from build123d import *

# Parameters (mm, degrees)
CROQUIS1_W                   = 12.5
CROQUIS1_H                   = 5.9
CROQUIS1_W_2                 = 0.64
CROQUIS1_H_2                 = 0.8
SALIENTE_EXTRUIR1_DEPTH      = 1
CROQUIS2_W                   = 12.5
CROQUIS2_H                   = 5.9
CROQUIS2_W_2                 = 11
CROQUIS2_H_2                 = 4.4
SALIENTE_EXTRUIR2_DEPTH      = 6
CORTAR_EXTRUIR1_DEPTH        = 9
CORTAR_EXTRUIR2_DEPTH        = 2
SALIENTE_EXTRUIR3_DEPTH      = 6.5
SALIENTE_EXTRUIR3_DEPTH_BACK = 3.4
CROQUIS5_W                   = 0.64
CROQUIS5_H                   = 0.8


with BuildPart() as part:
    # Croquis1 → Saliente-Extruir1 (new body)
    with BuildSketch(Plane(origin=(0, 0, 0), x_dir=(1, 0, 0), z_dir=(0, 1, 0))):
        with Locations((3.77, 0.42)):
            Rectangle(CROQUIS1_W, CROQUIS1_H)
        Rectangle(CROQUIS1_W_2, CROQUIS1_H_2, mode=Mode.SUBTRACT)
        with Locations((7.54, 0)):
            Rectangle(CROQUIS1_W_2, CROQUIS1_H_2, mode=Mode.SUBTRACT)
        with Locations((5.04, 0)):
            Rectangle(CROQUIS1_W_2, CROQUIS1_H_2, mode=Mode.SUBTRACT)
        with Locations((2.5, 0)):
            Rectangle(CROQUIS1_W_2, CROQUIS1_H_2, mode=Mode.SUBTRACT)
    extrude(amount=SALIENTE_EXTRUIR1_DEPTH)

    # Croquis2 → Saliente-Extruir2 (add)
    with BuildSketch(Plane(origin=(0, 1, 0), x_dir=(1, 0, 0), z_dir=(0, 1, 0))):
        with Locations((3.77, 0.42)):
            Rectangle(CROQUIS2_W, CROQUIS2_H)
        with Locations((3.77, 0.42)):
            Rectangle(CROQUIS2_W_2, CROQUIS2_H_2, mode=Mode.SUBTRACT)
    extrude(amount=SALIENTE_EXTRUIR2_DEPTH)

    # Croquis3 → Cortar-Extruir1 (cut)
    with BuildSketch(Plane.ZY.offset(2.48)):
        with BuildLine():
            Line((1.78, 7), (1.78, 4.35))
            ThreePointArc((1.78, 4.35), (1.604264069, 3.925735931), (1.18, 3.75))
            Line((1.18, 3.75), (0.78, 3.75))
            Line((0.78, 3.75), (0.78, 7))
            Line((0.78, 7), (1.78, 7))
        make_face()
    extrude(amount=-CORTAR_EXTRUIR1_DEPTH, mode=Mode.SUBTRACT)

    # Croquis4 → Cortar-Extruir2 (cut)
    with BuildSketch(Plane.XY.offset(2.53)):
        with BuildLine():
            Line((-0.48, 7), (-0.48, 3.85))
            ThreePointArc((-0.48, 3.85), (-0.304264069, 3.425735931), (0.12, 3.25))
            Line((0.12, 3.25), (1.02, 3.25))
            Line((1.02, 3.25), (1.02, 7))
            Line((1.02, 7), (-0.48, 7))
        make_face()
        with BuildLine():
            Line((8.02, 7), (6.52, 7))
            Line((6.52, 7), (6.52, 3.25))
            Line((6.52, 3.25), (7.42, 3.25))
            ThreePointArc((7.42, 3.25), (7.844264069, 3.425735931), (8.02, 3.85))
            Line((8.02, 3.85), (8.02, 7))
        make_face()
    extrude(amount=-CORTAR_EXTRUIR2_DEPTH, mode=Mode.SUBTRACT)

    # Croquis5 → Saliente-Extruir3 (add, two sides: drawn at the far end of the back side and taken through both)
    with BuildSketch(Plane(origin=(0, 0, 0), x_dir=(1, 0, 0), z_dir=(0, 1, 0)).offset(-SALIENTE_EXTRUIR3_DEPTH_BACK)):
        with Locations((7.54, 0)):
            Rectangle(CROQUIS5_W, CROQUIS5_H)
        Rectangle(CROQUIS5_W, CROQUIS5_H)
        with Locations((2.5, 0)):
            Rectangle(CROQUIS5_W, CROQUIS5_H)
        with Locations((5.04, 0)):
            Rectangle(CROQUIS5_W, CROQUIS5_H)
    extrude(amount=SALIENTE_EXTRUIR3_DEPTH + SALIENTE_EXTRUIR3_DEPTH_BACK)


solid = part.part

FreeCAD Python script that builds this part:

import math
import FreeCAD as App
import Part
import Sketcher
from FreeCAD import Vector
Q = App.Units.Quantity

doc = App.newDocument("Part")
params = doc.addObject("Spreadsheet::Sheet", "Params")
for row, (alias, value) in enumerate([
    ("sketch1_width", "12.5 mm"),
    ("sketch1_height", "5.9 mm"),
    ("sketch1_height2", "0.8 mm"),
    ("sketch1_width2", "0.64 mm"),
    ("pad1_length", "1 mm"),
    ("sketch2_width", "11 mm"),
    ("sketch2_width2", "12.5 mm"),
    ("sketch2_height", "5.9 mm"),
    ("sketch2_height2", "4.4 mm"),
    ("pad2_length", "6 mm"),
    ("sketch3_radius", "0.6 mm"),
    ("sketch3_height", "1 mm"),
    ("sketch3_width", "2.65 mm"),
    ("pocket1_length", "9 mm"),
    ("sketch4_radius", "0.6 mm"),
    ("sketch4_width", "0.9 mm"),
    ("sketch4_height", "3.15 mm"),
    ("pocket2_length", "2 mm"),
    ("sketch5_height", "0.8 mm"),
    ("sketch5_width", "0.64 mm"),
    ("pad3_length", "6.5 mm"),
    ("pad3_length2", "3.4 mm"),
], start=1):
    params.set(f"A{row}", alias)
    params.set(f"B{row}", "=" + value)
    params.setAlias(f"B{row}", alias)

body = doc.addObject("PartDesign::Body", "Body")

# Sketch on XZ plane
sketch1 = doc.addObject("Sketcher::SketchObject", "Sketch")
body.addObject(sketch1)
sketch1.AttachmentSupport = (doc.XZ_Plane, [""])
sketch1.MapMode = "FlatFace"
sketch1.addGeometry([
    Part.LineSegment(Vector(-2.5, -3.4, 0), Vector(-2.5, 2.5, 0)),  # 0
    Part.LineSegment(Vector(-2.5, 2.5, 0), Vector(10, 2.5, 0)),  # 1
    Part.LineSegment(Vector(10, 2.5, 0), Vector(10, -3.4, 0)),  # 2
    Part.LineSegment(Vector(10, -3.4, 0), Vector(-2.5, -3.4, 0)),  # 3
    Part.LineSegment(Vector(0.3, 0.4, 0), Vector(-0.3, 0.4, 0)),  # 4
    Part.LineSegment(Vector(-0.3, 0.4, 0), Vector(-0.3, -0.4, 0)),  # 5
    Part.LineSegment(Vector(-0.3, -0.4, 0), Vector(0.3, -0.4, 0)),  # 6
    Part.LineSegment(Vector(0.3, -0.4, 0), Vector(0.3, 0.4, 0)),  # 7
    Part.LineSegment(Vector(2.8, 0.4, 0), Vector(2.2, 0.4, 0)),  # 8
    Part.LineSegment(Vector(2.2, 0.4, 0), Vector(2.2, -0.4, 0)),  # 9
    Part.LineSegment(Vector(2.2, -0.4, 0), Vector(2.8, -0.4, 0)),  # 10
    Part.LineSegment(Vector(2.8, -0.4, 0), Vector(2.8, 0.4, 0)),  # 11
    Part.LineSegment(Vector(5.4, 0.4, 0), Vector(4.7, 0.4, 0)),  # 12
    Part.LineSegment(Vector(4.7, 0.4, 0), Vector(4.7, -0.4, 0)),  # 13
    Part.LineSegment(Vector(4.7, -0.4, 0), Vector(5.4, -0.4, 0)),  # 14
    Part.LineSegment(Vector(5.4, -0.4, 0), Vector(5.4, 0.4, 0)),  # 15
    Part.LineSegment(Vector(7.9, 0.4, 0), Vector(7.2, 0.4, 0)),  # 16
    Part.LineSegment(Vector(7.2, 0.4, 0), Vector(7.2, -0.4, 0)),  # 17
    Part.LineSegment(Vector(7.2, -0.4, 0), Vector(7.9, -0.4, 0)),  # 18
    Part.LineSegment(Vector(7.9, -0.4, 0), Vector(7.9, 0.4, 0)),  # 19
], False)
sketch1.addConstraint([
    Sketcher.Constraint("Coincident", 0, 2, 1, 1),
    Sketcher.Constraint("Coincident", 1, 2, 2, 1),
    Sketcher.Constraint("Coincident", 2, 2, 3, 1),
    Sketcher.Constraint("Coincident", 3, 2, 0, 1),
    Sketcher.Constraint("Coincident", 4, 2, 5, 1),
    Sketcher.Constraint("Coincident", 5, 2, 6, 1),
    Sketcher.Constraint("Coincident", 6, 2, 7, 1),
    Sketcher.Constraint("Coincident", 7, 2, 4, 1),
    Sketcher.Constraint("Coincident", 8, 2, 9, 1),
    Sketcher.Constraint("Coincident", 9, 2, 10, 1),
    Sketcher.Constraint("Coincident", 10, 2, 11, 1),
    Sketcher.Constraint("Coincident", 11, 2, 8, 1),
    Sketcher.Constraint("Coincident", 12, 2, 13, 1),
    Sketcher.Constraint("Coincident", 13, 2, 14, 1),
    Sketcher.Constraint("Coincident", 14, 2, 15, 1),
    Sketcher.Constraint("Coincident", 15, 2, 12, 1),
    Sketcher.Constraint("Coincident", 16, 2, 17, 1),
    Sketcher.Constraint("Coincident", 17, 2, 18, 1),
    Sketcher.Constraint("Coincident", 18, 2, 19, 1),
    Sketcher.Constraint("Coincident", 19, 2, 16, 1),
    Sketcher.Constraint("Vertical", 0),
    Sketcher.Constraint("Horizontal", 1),
    Sketcher.Constraint("Vertical", 2),
    Sketcher.Constraint("Horizontal", 3),
    Sketcher.Constraint("Horizontal", 4),
    Sketcher.Constraint("Vertical", 5),
    Sketcher.Constraint("Horizontal", 6),
    Sketcher.Constraint("Vertical", 7),
    Sketcher.Constraint("Horizontal", 8),
    Sketcher.Constraint("Vertical", 9),
    Sketcher.Constraint("Horizontal", 10),
    Sketcher.Constraint("Vertical", 11),
    Sketcher.Constraint("Horizontal", 12),
    Sketcher.Constraint("Vertical", 13),
    Sketcher.Constraint("Horizontal", 14),
    Sketcher.Constraint("Vertical", 15),
    Sketcher.Constraint("Horizontal", 16),
    Sketcher.Constraint("Vertical", 17),
    Sketcher.Constraint("Horizontal", 18),
    Sketcher.Constraint("Vertical", 19),
    Sketcher.Constraint("Symmetric", 4, 2, 6, 2, -1, 1),
    Sketcher.Constraint("Horizontal", 7, 2, 8, 2),
    Sketcher.Constraint("Horizontal", 6, 2, 9, 2),
    Sketcher.Constraint("Horizontal", 11, 2, 12, 2),
    Sketcher.Constraint("Horizontal", 10, 2, 13, 2),
    Sketcher.Constraint("Horizontal", 15, 2, 16, 2),
    Sketcher.Constraint("Horizontal", 14, 2, 17, 2),
    Sketcher.Constraint("Equal", 6, 8),
    Sketcher.Constraint("Equal", 10, 12),
    Sketcher.Constraint("Equal", 14, 16),
    Sketcher.Constraint("DistanceX", 1, 1, 1, 2, Q("12.5 mm")),
    Sketcher.Constraint("DistanceY", 0, 1, 0, 2, Q("5.9 mm")),
    Sketcher.Constraint("DistanceY", 5, 2, 5, 1, Q("0.8 mm")),
    Sketcher.Constraint("DistanceX", 4, 2, 4, 1, Q("0.64 mm")),
    Sketcher.Constraint("DistanceX", 0, 2, 6, 2, Q("2.8 mm")),
    Sketcher.Constraint("DistanceX", 4, 2, 8, 2, Q("2.5 mm")),
    Sketcher.Constraint("DistanceX", 11, 2, 12, 2, Q("1.9 mm")),
    Sketcher.Constraint("DistanceX", 12, 2, 16, 2, Q("2.5 mm")),
    Sketcher.Constraint("DistanceY", -1, 1, 0, 2, Q("2.53 mm")),
])
sketch1.setExpression("Constraints[50]", "Params.sketch1_width")
sketch1.setExpression("Constraints[51]", "Params.sketch1_height")
sketch1.setExpression("Constraints[52]", "Params.sketch1_height2")
sketch1.setExpression("Constraints[53]", "Params.sketch1_width2")
pad1 = doc.addObject("PartDesign::Pad", "Pad")
body.addObject(pad1)
pad1.Profile = sketch1
pad1.setExpression("Length", "Params.pad1_length")
pad1.Reversed = True

# Sketch on XZ plane
sketch2 = doc.addObject("Sketcher::SketchObject", "Sketch001")
body.addObject(sketch2)
sketch2.AttachmentSupport = (doc.XZ_Plane, [""])
sketch2.MapMode = "FlatFace"
sketch2.AttachmentOffset = App.Placement(Vector(0, 0, -1), App.Rotation())
sketch2.addGeometry([
    Part.LineSegment(Vector(-2.5, -3.4, 0), Vector(-2.5, 2.5, 0)),  # 0
    Part.LineSegment(Vector(-2.5, 2.5, 0), Vector(10, 2.5, 0)),  # 1
    Part.LineSegment(Vector(10, 2.5, 0), Vector(10, -3.4, 0)),  # 2
    Part.LineSegment(Vector(10, -3.4, 0), Vector(-2.5, -3.4, 0)),  # 3
    Part.LineSegment(Vector(9.3, 1.8, 0), Vector(-1.7, 1.8, 0)),  # 4
    Part.LineSegment(Vector(-1.7, 1.8, 0), Vector(-1.7, -2.6, 0)),  # 5
    Part.LineSegment(Vector(-1.7, -2.6, 0), Vector(9.3, -2.6, 0)),  # 6
    Part.LineSegment(Vector(9.3, -2.6, 0), Vector(9.3, 1.8, 0)),  # 7
], False)
sketch2.addConstraint([
    Sketcher.Constraint("Coincident", 0, 2, 1, 1),
    Sketcher.Constraint("Coincident", 1, 2, 2, 1),
    Sketcher.Constraint("Coincident", 2, 2, 3, 1),
    Sketcher.Constraint("Coincident", 3, 2, 0, 1),
    Sketcher.Constraint("Coincident", 4, 2, 5, 1),
    Sketcher.Constraint("Coincident", 5, 2, 6, 1),
    Sketcher.Constraint("Coincident", 6, 2, 7, 1),
    Sketcher.Constraint("Coincident", 7, 2, 4, 1),
    Sketcher.Constraint("Vertical", 0),
    Sketcher.Constraint("Horizontal", 1),
    Sketcher.Constraint("Vertical", 2),
    Sketcher.Constraint("Horizontal", 3),
    Sketcher.Constraint("Horizontal", 4),
    Sketcher.Constraint("Vertical", 5),
    Sketcher.Constraint("Horizontal", 6),
    Sketcher.Constraint("Vertical", 7),
    Sketcher.Constraint("DistanceX", 4, 2, 4, 1, Q("11 mm")),
    Sketcher.Constraint("DistanceX", 1, 1, 1, 2, Q("12.5 mm")),
    Sketcher.Constraint("DistanceY", 0, 1, 0, 2, Q("5.9 mm")),
    Sketcher.Constraint("DistanceY", 5, 2, 5, 1, Q("4.4 mm")),
    Sketcher.Constraint("DistanceX", 0, 2, -1, 1, Q("2.48 mm")),
    Sketcher.Constraint("DistanceY", -1, 1, 0, 2, Q("2.53 mm")),
    Sketcher.Constraint("DistanceX", 4, 2, -1, 1, Q("1.73 mm")),
    Sketcher.Constraint("DistanceY", -1, 1, 4, 2, Q("1.78 mm")),
])
sketch2.setExpression("Constraints[16]", "Params.sketch2_width")
sketch2.setExpression("Constraints[17]", "Params.sketch2_width2")
sketch2.setExpression("Constraints[18]", "Params.sketch2_height")
sketch2.setExpression("Constraints[19]", "Params.sketch2_height2")
pad2 = doc.addObject("PartDesign::Pad", "Pad001")
body.addObject(pad2)
pad2.Profile = sketch2
pad2.setExpression("Length", "Params.pad2_length")
pad2.Reversed = True

# Sketch on YZ plane
sketch3 = doc.addObject("Sketcher::SketchObject", "Sketch002")
body.addObject(sketch3)
sketch3.AttachmentSupport = (doc.YZ_Plane, [""])
sketch3.MapMode = "FlatFace"
sketch3.AttachmentOffset = App.Placement(Vector(0, 0, -2.48), App.Rotation())
sketch3.addGeometry([
    Part.LineSegment(Vector(4.35, 1.78, 0), Vector(7, 1.78, 0)),  # 0
    Part.LineSegment(Vector(7, 1.78, 0), Vector(7, 0.78, 0)),  # 1
    Part.LineSegment(Vector(7, 0.78, 0), Vector(3.75, 0.78, 0)),  # 2
    Part.LineSegment(Vector(3.75, 0.78, 0), Vector(3.75, 1.18, 0)),  # 3
    Part.ArcOfCircle(Part.Circle(Vector(4.35, 1.18, 0), Vector(0, 0, 1), 0.6), math.radians(90), math.radians(180)),  # 4
], False)
sketch3.addConstraint([
    Sketcher.Constraint("Coincident", 0, 2, 1, 1),
    Sketcher.Constraint("Coincident", 1, 2, 2, 1),
    Sketcher.Constraint("Coincident", 2, 2, 3, 1),
    Sketcher.Constraint("Tangent", 3, 2, 4, 2),
    Sketcher.Constraint("Tangent", 4, 1, 0, 1),
    Sketcher.Constraint("Horizontal", 0),
    Sketcher.Constraint("Vertical", 1),
    Sketcher.Constraint("Horizontal", 2),
    Sketcher.Constraint("Vertical", 3),
    Sketcher.Constraint("Radius", 4, Q("0.6 mm")),
    Sketcher.Constraint("DistanceY", 1, 2, 1, 1, Q("1 mm")),
    Sketcher.Constraint("DistanceX", -1, 1, 0, 2, Q("7 mm")),
    Sketcher.Constraint("DistanceX", 0, 1, 0, 2, Q("2.65 mm")),
    Sketcher.Constraint("DistanceY", -1, 1, 4, 3, Q("1.18 mm")),
])
sketch3.setExpression("Constraints[9]", "Params.sketch3_radius")
sketch3.setExpression("Constraints[10]", "Params.sketch3_height")
sketch3.setExpression("Constraints[12]", "Params.sketch3_width")
pocket1 = doc.addObject("PartDesign::Pocket", "Pocket")
body.addObject(pocket1)
pocket1.Profile = sketch3
pocket1.setExpression("Length", "Params.pocket1_length")
pocket1.Reversed = True

# Sketch on XY plane
sketch4 = doc.addObject("Sketcher::SketchObject", "Sketch003")
body.addObject(sketch4)
sketch4.AttachmentSupport = (doc.XY_Plane, [""])
sketch4.MapMode = "FlatFace"
sketch4.AttachmentOffset = App.Placement(Vector(0, 0, 2.53), App.Rotation())
sketch4.addGeometry([
    Part.LineSegment(Vector(-0.5, 7, 0), Vector(-0.5, 3.9, 0)),  # 0
    Part.ArcOfCircle(Part.Circle(Vector(0.1, 3.8, 0), Vector(0, 0, 1), 0.6), math.radians(180), math.radians(270)),  # 1
    Part.LineSegment(Vector(0.1, 3.2, 0), Vector(1, 3.2, 0)),  # 2
    Part.LineSegment(Vector(1, 3.2, 0), Vector(1, 7, 0)),  # 3
    Part.LineSegment(Vector(1, 7, 0), Vector(-0.5, 7, 0)),  # 4
    Part.LineSegment(Vector(8, 7, 0), Vector(6.5, 7, 0)),  # 5
    Part.LineSegment(Vector(6.5, 7, 0), Vector(6.5, 3.2, 0)),  # 6
    Part.LineSegment(Vector(6.5, 3.2, 0), Vector(7.4, 3.2, 0)),  # 7
    Part.ArcOfCircle(Part.Circle(Vector(7.4, 3.8, 0), Vector(0, 0, 1), 0.6), math.radians(-90), math.radians(0)),  # 8
    Part.LineSegment(Vector(8, 3.9, 0), Vector(8, 7, 0)),  # 9
], False)
sketch4.addConstraint([
    Sketcher.Constraint("Tangent", 0, 2, 1, 1),
    Sketcher.Constraint("Tangent", 1, 2, 2, 1),
    Sketcher.Constraint("Coincident", 2, 2, 3, 1),
    Sketcher.Constraint("Coincident", 3, 2, 4, 1),
    Sketcher.Constraint("Coincident", 4, 2, 0, 1),
    Sketcher.Constraint("Coincident", 5, 2, 6, 1),
    Sketcher.Constraint("Coincident", 6, 2, 7, 1),
    Sketcher.Constraint("Tangent", 7, 2, 8, 1),
    Sketcher.Constraint("Tangent", 8, 2, 9, 1),
    Sketcher.Constraint("Coincident", 9, 2, 5, 1),
    Sketcher.Constraint("Vertical", 0),
    Sketcher.Constraint("Horizontal", 2),
    Sketcher.Constraint("Vertical", 3),
    Sketcher.Constraint("Horizontal", 4),
    Sketcher.Constraint("Horizontal", 5),
    Sketcher.Constraint("Vertical", 6),
    Sketcher.Constraint("Horizontal", 7),
    Sketcher.Constraint("Vertical", 9),
    Sketcher.Constraint("Equal", 1, 8),
    Sketcher.Constraint("Horizontal", 1, 3, 8, 3),
    Sketcher.Constraint("Horizontal", 4, 2, 5, 2),
    Sketcher.Constraint("Equal", 4, 5),
    Sketcher.Constraint("Radius", 1, Q("0.6 mm")),
    Sketcher.Constraint("DistanceX", 2, 1, 2, 2, Q("0.9 mm")),
    Sketcher.Constraint("DistanceY", -1, 1, 3, 2, Q("7 mm")),
    Sketcher.Constraint("DistanceX", 4, 2, 5, 2, Q("7 mm")),
    Sketcher.Constraint("DistanceY", 0, 2, 0, 1, Q("3.15 mm")),
    Sketcher.Constraint("DistanceX", -1, 1, 1, 3, Q("0.12 mm")),
])
sketch4.setExpression("Constraints[22]", "Params.sketch4_radius")
sketch4.setExpression("Constraints[23]", "Params.sketch4_width")
sketch4.setExpression("Constraints[26]", "Params.sketch4_height")
pocket2 = doc.addObject("PartDesign::Pocket", "Pocket001")
body.addObject(pocket2)
pocket2.Profile = sketch4
pocket2.setExpression("Length", "Params.pocket2_length")

# Sketch on XZ plane
sketch5 = doc.addObject("Sketcher::SketchObject", "Sketch004")
body.addObject(sketch5)
sketch5.AttachmentSupport = (doc.XZ_Plane, [""])
sketch5.MapMode = "FlatFace"
sketch5.addGeometry([
    Part.LineSegment(Vector(7.2, -0.4, 0), Vector(7.2, 0.4, 0)),  # 0
    Part.LineSegment(Vector(7.2, 0.4, 0), Vector(7.9, 0.4, 0)),  # 1
    Part.LineSegment(Vector(7.9, 0.4, 0), Vector(7.9, -0.4, 0)),  # 2
    Part.LineSegment(Vector(7.9, -0.4, 0), Vector(7.2, -0.4, 0)),  # 3
    Part.LineSegment(Vector(-0.3, -0.4, 0), Vector(-0.3, 0.4, 0)),  # 4
    Part.LineSegment(Vector(-0.3, 0.4, 0), Vector(0.3, 0.4, 0)),  # 5
    Part.LineSegment(Vector(0.3, 0.4, 0), Vector(0.3, -0.4, 0)),  # 6
    Part.LineSegment(Vector(0.3, -0.4, 0), Vector(-0.3, -0.4, 0)),  # 7
    Part.LineSegment(Vector(2.2, -0.4, 0), Vector(2.2, 0.4, 0)),  # 8
    Part.LineSegment(Vector(2.2, 0.4, 0), Vector(2.8, 0.4, 0)),  # 9
    Part.LineSegment(Vector(2.8, 0.4, 0), Vector(2.8, -0.4, 0)),  # 10
    Part.LineSegment(Vector(2.8, -0.4, 0), Vector(2.2, -0.4, 0)),  # 11
    Part.LineSegment(Vector(4.7, -0.4, 0), Vector(4.7, 0.4, 0)),  # 12
    Part.LineSegment(Vector(4.7, 0.4, 0), Vector(5.4, 0.4, 0)),  # 13
    Part.LineSegment(Vector(5.4, 0.4, 0), Vector(5.4, -0.4, 0)),  # 14
    Part.LineSegment(Vector(5.4, -0.4, 0), Vector(4.7, -0.4, 0)),  # 15
], False)
sketch5.addConstraint([
    Sketcher.Constraint("Coincident", 0, 2, 1, 1),
    Sketcher.Constraint("Coincident", 1, 2, 2, 1),
    Sketcher.Constraint("Coincident", 2, 2, 3, 1),
    Sketcher.Constraint("Coincident", 3, 2, 0, 1),
    Sketcher.Constraint("Coincident", 4, 2, 5, 1),
    Sketcher.Constraint("Coincident", 5, 2, 6, 1),
    Sketcher.Constraint("Coincident", 6, 2, 7, 1),
    Sketcher.Constraint("Coincident", 7, 2, 4, 1),
    Sketcher.Constraint("Coincident", 8, 2, 9, 1),
    Sketcher.Constraint("Coincident", 9, 2, 10, 1),
    Sketcher.Constraint("Coincident", 10, 2, 11, 1),
    Sketcher.Constraint("Coincident", 11, 2, 8, 1),
    Sketcher.Constraint("Coincident", 12, 2, 13, 1),
    Sketcher.Constraint("Coincident", 13, 2, 14, 1),
    Sketcher.Constraint("Coincident", 14, 2, 15, 1),
    Sketcher.Constraint("Coincident", 15, 2, 12, 1),
    Sketcher.Constraint("Vertical", 0),
    Sketcher.Constraint("Horizontal", 1),
    Sketcher.Constraint("Vertical", 2),
    Sketcher.Constraint("Horizontal", 3),
    Sketcher.Constraint("Vertical", 4),
    Sketcher.Constraint("Horizontal", 5),
    Sketcher.Constraint("Vertical", 6),
    Sketcher.Constraint("Horizontal", 7),
    Sketcher.Constraint("Vertical", 8),
    Sketcher.Constraint("Horizontal", 9),
    Sketcher.Constraint("Vertical", 10),
    Sketcher.Constraint("Horizontal", 11),
    Sketcher.Constraint("Vertical", 12),
    Sketcher.Constraint("Horizontal", 13),
    Sketcher.Constraint("Vertical", 14),
    Sketcher.Constraint("Horizontal", 15),
    Sketcher.Constraint("Symmetric", 4, 2, 6, 2, -1, 1),
    Sketcher.Constraint("Horizontal", 1, 2, 4, 2),
    Sketcher.Constraint("Horizontal", 3, 2, 6, 2),
    Sketcher.Constraint("Horizontal", 5, 2, 8, 2),
    Sketcher.Constraint("Horizontal", 7, 2, 10, 2),
    Sketcher.Constraint("Horizontal", 9, 2, 12, 2),
    Sketcher.Constraint("Horizontal", 11, 2, 14, 2),
    Sketcher.Constraint("Equal", 3, 5),
    Sketcher.Constraint("Equal", 7, 9),
    Sketcher.Constraint("Equal", 11, 13),
    Sketcher.Constraint("DistanceY", 0, 1, 0, 2, Q("0.8 mm")),
    Sketcher.Constraint("DistanceX", 1, 1, 1, 2, Q("0.64 mm")),
    Sketcher.Constraint("DistanceX", 5, 2, 0, 2, Q("6.9 mm")),
    Sketcher.Constraint("DistanceX", 4, 2, 8, 2, Q("2.5 mm")),
    Sketcher.Constraint("DistanceX", 9, 2, 12, 2, Q("1.9 mm")),
])
sketch5.setExpression("Constraints[42]", "Params.sketch5_height")
sketch5.setExpression("Constraints[43]", "Params.sketch5_width")
pad3 = doc.addObject("PartDesign::Pad", "Pad002")
body.addObject(pad3)
pad3.Profile = sketch5
pad3.Type = "TwoLengths"
pad3.setExpression("Length", "Params.pad3_length")
pad3.setExpression("Length2", "Params.pad3_length2")
pad3.Reversed = True

doc.recompute()
